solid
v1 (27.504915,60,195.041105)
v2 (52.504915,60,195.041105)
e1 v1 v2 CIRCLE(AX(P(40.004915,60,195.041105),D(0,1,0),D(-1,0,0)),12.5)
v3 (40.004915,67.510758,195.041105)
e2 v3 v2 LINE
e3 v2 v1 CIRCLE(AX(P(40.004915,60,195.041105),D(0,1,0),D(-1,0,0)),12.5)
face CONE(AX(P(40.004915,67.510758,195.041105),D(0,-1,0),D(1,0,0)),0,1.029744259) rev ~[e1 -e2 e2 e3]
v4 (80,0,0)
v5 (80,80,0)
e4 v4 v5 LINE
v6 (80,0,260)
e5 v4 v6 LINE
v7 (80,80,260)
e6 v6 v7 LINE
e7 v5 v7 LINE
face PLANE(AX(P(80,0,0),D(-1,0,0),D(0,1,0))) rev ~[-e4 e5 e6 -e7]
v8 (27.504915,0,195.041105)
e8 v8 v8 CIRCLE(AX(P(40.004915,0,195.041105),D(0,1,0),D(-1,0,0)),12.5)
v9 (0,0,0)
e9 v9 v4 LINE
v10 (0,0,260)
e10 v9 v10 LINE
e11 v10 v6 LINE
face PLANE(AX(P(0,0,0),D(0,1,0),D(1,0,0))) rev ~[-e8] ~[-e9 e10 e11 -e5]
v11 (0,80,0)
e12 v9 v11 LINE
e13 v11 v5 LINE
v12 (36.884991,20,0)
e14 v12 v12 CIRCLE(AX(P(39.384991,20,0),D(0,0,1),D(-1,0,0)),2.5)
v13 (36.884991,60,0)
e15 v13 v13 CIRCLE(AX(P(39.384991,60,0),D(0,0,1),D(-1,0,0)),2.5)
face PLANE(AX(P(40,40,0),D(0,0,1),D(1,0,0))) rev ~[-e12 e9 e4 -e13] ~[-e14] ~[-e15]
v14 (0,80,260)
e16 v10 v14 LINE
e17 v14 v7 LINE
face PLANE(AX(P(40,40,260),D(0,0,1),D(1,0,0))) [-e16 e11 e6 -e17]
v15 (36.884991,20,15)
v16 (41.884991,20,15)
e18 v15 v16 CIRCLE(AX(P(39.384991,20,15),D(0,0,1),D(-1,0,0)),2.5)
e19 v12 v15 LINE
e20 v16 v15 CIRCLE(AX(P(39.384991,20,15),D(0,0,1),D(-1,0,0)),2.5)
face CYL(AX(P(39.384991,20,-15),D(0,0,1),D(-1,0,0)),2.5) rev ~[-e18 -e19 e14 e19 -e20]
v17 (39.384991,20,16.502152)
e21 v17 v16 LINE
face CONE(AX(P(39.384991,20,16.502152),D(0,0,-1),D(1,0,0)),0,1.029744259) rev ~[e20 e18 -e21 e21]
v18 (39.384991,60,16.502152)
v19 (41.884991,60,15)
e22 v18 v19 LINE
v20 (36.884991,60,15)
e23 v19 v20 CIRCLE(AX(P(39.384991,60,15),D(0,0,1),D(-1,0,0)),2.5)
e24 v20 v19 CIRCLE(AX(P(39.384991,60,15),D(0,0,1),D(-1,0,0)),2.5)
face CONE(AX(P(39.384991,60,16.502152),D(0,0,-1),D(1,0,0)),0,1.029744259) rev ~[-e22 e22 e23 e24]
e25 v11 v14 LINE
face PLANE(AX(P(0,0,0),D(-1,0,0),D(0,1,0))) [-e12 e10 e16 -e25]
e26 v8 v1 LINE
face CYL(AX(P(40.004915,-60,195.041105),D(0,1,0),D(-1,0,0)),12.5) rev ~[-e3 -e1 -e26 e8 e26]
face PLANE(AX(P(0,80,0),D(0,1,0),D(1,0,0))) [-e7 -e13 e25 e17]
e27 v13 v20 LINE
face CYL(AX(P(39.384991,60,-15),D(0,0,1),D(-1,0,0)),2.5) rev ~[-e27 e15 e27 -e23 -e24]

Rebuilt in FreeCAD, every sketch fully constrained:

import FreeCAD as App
import Part
import Sketcher
Q = App.Units.Quantity


def add_polygon(sketch, points):
    """Adds a closed chain of lines whose ends are joined by coincident constraints."""
    first, n = sketch.GeometryCount, len(points)
    for a, b in zip(points, points[1:] + points[:1]):
        sketch.addGeometry(Part.LineSegment(App.Vector(*a, 0), App.Vector(*b, 0)), False)
    for i in range(n):
        sketch.addConstraint(Sketcher.Constraint("Coincident", first + i, 2, first + (i + 1) % n, 1))

doc = App.newDocument("Part")
body = doc.addObject("PartDesign::Body", "Body")

sketch1 = body.newObject("Sketcher::SketchObject", "Sketch")
sketch1.AttachmentSupport = (doc.getObject("XY_Plane"), [""])
sketch1.MapMode = "FlatFace"
add_polygon(sketch1, [(0, 80), (0, 0), (80, 0), (80, 80)])
sketch1.addConstraint([
    Sketcher.Constraint("Vertical", 0),
    Sketcher.Constraint("Horizontal", 1),
    Sketcher.Constraint("Vertical", 2),
    Sketcher.Constraint("Horizontal", 3),
    Sketcher.Constraint("Coincident", 0, 2, -1, 1),
    Sketcher.Constraint("Equal", 3, 0),
    Sketcher.Constraint("DistanceX", 1, 1, 1, 2, Q("80 mm")),
])
pad1 = body.newObject("PartDesign::Pad", "Pad")
pad1.Profile = sketch1
pad1.Length = 260

sketch2 = body.newObject("Sketcher::SketchObject", "Sketch001")
sketch2.AttachmentSupport = (doc.getObject("XZ_Plane"), [""])
sketch2.MapMode = "FlatFace"
sketch2.addGeometry(Part.Circle(App.Vector(40, 195, 0), App.Vector(0, 0, 1), 12), False)
sketch2.addConstraint([
    Sketcher.Constraint("Diameter", 0, Q("25 mm")),
    Sketcher.Constraint("DistanceX", -1, 1, 0, 3, Q("40.004915 mm")),
    Sketcher.Constraint("DistanceY", -1, 1, 0, 3, Q("195.041105 mm")),
])
doc.recompute()
hole = body.newObject("PartDesign::Hole", "Hole")
hole.Profile = sketch2
hole.ThreadType = "None"
hole.Diameter = 25
hole.DepthType = "Dimension"
hole.Depth = 60
hole.DrillPoint = "Angled"
hole.DrillPointAngle = 118

sketch3 = body.newObject("Sketcher::SketchObject", "Sketch002")
sketch3.AttachmentSupport = (doc.getObject("XY_Plane"), [""])
sketch3.MapMode = "FlatFace"
sketch3.addGeometry([
    Part.Circle(App.Vector(39.4, 20, 0), App.Vector(0, 0, 1), 2.5),
    Part.Circle(App.Vector(39.4, 60, 0), App.Vector(0, 0, 1), 2.5),
], False)
sketch3.addConstraint([
    Sketcher.Constraint("Equal", 0, 1),
    Sketcher.Constraint("Vertical", 0, 3, 1, 3),
    Sketcher.Constraint("Diameter", 0, Q("5 mm")),
    Sketcher.Constraint("DistanceY", -1, 1, 0, 3, Q("20 mm")),
    Sketcher.Constraint("DistanceY", -1, 1, 1, 3, Q("60 mm")),
    Sketcher.Constraint("DistanceX", -1, 1, 0, 3, Q("39.384991 mm")),
])
doc.recompute()
hole2 = body.newObject("PartDesign::Hole", "Hole001")
hole2.Profile = sketch3
hole2.ThreadType = "None"
hole2.Diameter = 5
hole2.DepthType = "Dimension"
hole2.Depth = 15
hole2.DrillPoint = "Angled"
hole2.DrillPointAngle = 118
hole2.Reversed = True

doc.recompute()
